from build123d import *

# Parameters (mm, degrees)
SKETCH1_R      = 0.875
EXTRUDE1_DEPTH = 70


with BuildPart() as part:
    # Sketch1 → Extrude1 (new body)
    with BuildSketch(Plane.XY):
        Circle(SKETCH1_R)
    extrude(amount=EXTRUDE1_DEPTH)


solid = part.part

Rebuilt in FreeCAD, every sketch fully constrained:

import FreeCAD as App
import Part
import Sketcher

V = App.Vector
Q = App.Units.Quantity

doc = App.newDocument("Part")
body = doc.addObject("PartDesign::Body", "Body")

sketch1 = body.newObject("Sketcher::SketchObject", "Sketch")
sketch1.AttachmentSupport = (doc.getObject("XY_Plane"), [""])
sketch1.MapMode = "FlatFace"
sketch1.addGeometry(Part.Circle(V(0, 0, 0), V(0, 0, 1), 0.9), False)
sketch1.addConstraint(Sketcher.Constraint("Coincident", 0, 3, -1, 1))
sketch1.addConstraint(Sketcher.Constraint("Diameter", 0, Q("1.75 mm")))
pad1 = body.newObject("PartDesign::Pad", "Pad")
pad1.Profile = sketch1
pad1.Length = 70

doc.recompute()
